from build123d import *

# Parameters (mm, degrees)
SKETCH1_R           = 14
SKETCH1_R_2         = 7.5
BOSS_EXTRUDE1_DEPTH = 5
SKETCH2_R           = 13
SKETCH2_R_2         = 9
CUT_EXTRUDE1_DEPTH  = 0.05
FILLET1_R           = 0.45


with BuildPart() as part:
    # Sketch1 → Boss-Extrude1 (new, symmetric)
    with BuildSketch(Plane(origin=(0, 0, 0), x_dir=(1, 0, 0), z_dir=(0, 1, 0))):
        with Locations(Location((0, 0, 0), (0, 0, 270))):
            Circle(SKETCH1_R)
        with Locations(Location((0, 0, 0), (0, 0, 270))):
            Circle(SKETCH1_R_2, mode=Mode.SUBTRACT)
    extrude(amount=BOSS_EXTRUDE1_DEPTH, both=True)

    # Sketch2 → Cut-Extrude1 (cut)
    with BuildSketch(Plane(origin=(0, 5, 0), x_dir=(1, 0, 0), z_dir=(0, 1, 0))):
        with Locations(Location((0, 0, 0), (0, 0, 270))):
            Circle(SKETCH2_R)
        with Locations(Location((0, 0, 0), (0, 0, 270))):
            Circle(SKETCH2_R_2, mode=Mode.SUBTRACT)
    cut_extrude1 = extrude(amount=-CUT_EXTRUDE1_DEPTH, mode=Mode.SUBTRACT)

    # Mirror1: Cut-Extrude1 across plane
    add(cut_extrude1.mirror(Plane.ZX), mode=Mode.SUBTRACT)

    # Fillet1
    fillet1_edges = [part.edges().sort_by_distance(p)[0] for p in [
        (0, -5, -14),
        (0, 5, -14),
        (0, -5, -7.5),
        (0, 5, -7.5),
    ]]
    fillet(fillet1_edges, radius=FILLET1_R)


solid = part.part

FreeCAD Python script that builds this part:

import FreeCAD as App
import Part
import Sketcher
from FreeCAD import Vector


def edges_at(feature, points):
    """Names of the edges that pass closest to the given points."""
    edges = feature.Shape.Edges
    near = lambda p: min(range(len(edges)), key=lambda i: edges[i].distToShape(Part.Vertex(*p))[0])
    return sorted({f"Edge{near(p) + 1}" for p in points})

doc = App.newDocument("Part")
body = doc.addObject("PartDesign::Body", "Body")

sketch1 = body.newObject("Sketcher::SketchObject", "Sketch")
sketch1.AttachmentSupport = (doc.getObject("XZ_Plane"), [""])
sketch1.MapMode = "FlatFace"
sketch1.addGeometry([
    Part.Circle(Vector(0, 0, 0), Vector(0, 0, 1), 14),
    Part.Circle(Vector(0, 0, 0), Vector(0, 0, 1), 7.5),
], False)
sketch1.addConstraint([
    Sketcher.Constraint("Coincident", 0, 3, -1, 1),
    Sketcher.Constraint("Coincident", 1, 3, -1, 1),
    Sketcher.Constraint("Diameter", 0, 28.0),
    Sketcher.Constraint("Diameter", 1, 15.0),
])
pad1 = body.newObject("PartDesign::Pad", "Pad")
pad1.Profile = sketch1
pad1.Length = 10
pad1.Midplane = True

sketch2 = body.newObject("Sketcher::SketchObject", "Sketch001")
sketch2.AttachmentSupport = (doc.getObject("XZ_Plane"), [""])
sketch2.MapMode = "FlatFace"
sketch2.AttachmentOffset = App.Placement(Vector(0, 0, -5), App.Rotation())
sketch2.addGeometry([
    Part.Circle(Vector(0, 0, 0), Vector(0, 0, 1), 13),
    Part.Circle(Vector(0, 0, 0), Vector(0, 0, 1), 9),
], False)
sketch2.addConstraint([
    Sketcher.Constraint("Coincident", 0, 3, -1, 1),
    Sketcher.Constraint("Coincident", 1, 3, -1, 1),
    Sketcher.Constraint("Diameter", 0, 26.0),
    Sketcher.Constraint("Diameter", 1, 18.0),
])
pocket1 = body.newObject("PartDesign::Pocket", "Pocket")
pocket1.Profile = sketch2
pocket1.Length = 0.05
pocket1.Reversed = True
doc.recompute()

mirrored = body.newObject("PartDesign::Mirrored", "Mirrored")
mirrored.Originals = [pocket1]
mirrored.MirrorPlane = (doc.getObject("XZ_Plane"), [""])
body.Tip = mirrored
doc.recompute()

fillet = body.newObject("PartDesign::Fillet", "Fillet")
fillet.Base = (mirrored, edges_at(mirrored, [
    (0, -5, -14),
    (0, 5, -14),
    (0, -5, -7.5),
    (0, 5, -7.5),
]))
fillet.Radius = 0.45

doc.recompute()
